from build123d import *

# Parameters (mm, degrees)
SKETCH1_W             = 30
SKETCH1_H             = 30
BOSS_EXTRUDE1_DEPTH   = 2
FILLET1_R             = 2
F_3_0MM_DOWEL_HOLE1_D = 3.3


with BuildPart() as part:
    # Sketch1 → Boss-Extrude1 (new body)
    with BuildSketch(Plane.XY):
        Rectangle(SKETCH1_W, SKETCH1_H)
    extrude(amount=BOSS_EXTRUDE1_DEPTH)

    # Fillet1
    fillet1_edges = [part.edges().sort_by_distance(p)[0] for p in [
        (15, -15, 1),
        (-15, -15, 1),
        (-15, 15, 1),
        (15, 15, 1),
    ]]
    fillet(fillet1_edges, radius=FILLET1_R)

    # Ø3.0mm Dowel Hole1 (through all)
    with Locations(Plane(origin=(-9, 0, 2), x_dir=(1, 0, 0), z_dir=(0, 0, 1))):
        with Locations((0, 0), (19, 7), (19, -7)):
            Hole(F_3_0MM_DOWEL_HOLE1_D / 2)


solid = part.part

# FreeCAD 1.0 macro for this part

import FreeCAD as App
import Part
import Sketcher

V = App.Vector


def edges_at(feature, points):
    """Names of the edges that pass closest to the given points."""
    edges = feature.Shape.Edges
    near = lambda p: min(range(len(edges)), key=lambda i: edges[i].distToShape(Part.Vertex(*p))[0])
    return sorted({f"Edge{near(p) + 1}" for p in points})

doc = App.newDocument("Part")
body = doc.addObject("PartDesign::Body", "Body")

sketch1 = body.newObject("Sketcher::SketchObject", "Sketch")
sketch1.AttachmentSupport = (doc.getObject("XY_Plane"), [""])
sketch1.MapMode = "FlatFace"
sketch1.addGeometry([
    Part.LineSegment(V(-15, 15, 0), V(-15, -15, 0)),
    Part.LineSegment(V(-15, -15, 0), V(15, -15, 0)),
    Part.LineSegment(V(15, -15, 0), V(15, 15, 0)),
    Part.LineSegment(V(15, 15, 0), V(-15, 15, 0)),
], False)
sketch1.addConstraint([
    Sketcher.Constraint("Coincident", 0, 2, 1, 1),
    Sketcher.Constraint("Coincident", 1, 2, 2, 1),
    Sketcher.Constraint("Coincident", 2, 2, 3, 1),
    Sketcher.Constraint("Coincident", 3, 2, 0, 1),
    Sketcher.Constraint("Vertical", 0),
    Sketcher.Constraint("Horizontal", 1),
    Sketcher.Constraint("Vertical", 2),
    Sketcher.Constraint("Horizontal", 3),
    Sketcher.Constraint("Symmetric", 0, 2, 2, 2, -1, 1),
    Sketcher.Constraint("Equal", 3, 0),
    Sketcher.Constraint("DistanceX", 1, 1, 1, 2, 30.0),
])
pad1 = body.newObject("PartDesign::Pad", "Pad")
pad1.Profile = sketch1
pad1.Length = 2
doc.recompute()

fillet = body.newObject("PartDesign::Fillet", "Fillet")
fillet.Base = (pad1, edges_at(pad1, [
    (15, -15, 1),
    (-15, -15, 1),
    (-15, 15, 1),
    (15, 15, 1),
]))
fillet.Radius = 2

sketch2 = body.newObject("Sketcher::SketchObject", "Sketch001")
sketch2.AttachmentSupport = (doc.getObject("XY_Plane"), [""])
sketch2.MapMode = "FlatFace"
sketch2.AttachmentOffset = App.Placement(V(0, 0, 2), App.Rotation())
sketch2.addGeometry([
    Part.Circle(V(-9, 0, 0), V(0, 0, 1), 1.6),
    Part.Circle(V(10, 7, 0), V(0, 0, 1), 1.6),
    Part.Circle(V(10, -7, 0), V(0, 0, 1), 1.6),
], False)
sketch2.addConstraint([
    Sketcher.Constraint("Equal", 0, 1),
    Sketcher.Constraint("Equal", 1, 2),
    Sketcher.Constraint("Symmetric", 1, 3, 2, 3, -1),
    Sketcher.Constraint("PointOnObject", 0, 3, -1),
    Sketcher.Constraint("Diameter", 0, 3.3),
    Sketcher.Constraint("DistanceX", 0, 3, -1, 1, 9.0),
    Sketcher.Constraint("DistanceX", -1, 1, 1, 3, 10.0),
    Sketcher.Constraint("DistanceY", -1, 1, 1, 3, 7.0),
])
doc.recompute()
hole = body.newObject("PartDesign::Hole", "Hole")
hole.Profile = sketch2
hole.ThreadType = "None"
hole.Diameter = 3.3
hole.DepthType = "ThroughAll"

doc.recompute()
